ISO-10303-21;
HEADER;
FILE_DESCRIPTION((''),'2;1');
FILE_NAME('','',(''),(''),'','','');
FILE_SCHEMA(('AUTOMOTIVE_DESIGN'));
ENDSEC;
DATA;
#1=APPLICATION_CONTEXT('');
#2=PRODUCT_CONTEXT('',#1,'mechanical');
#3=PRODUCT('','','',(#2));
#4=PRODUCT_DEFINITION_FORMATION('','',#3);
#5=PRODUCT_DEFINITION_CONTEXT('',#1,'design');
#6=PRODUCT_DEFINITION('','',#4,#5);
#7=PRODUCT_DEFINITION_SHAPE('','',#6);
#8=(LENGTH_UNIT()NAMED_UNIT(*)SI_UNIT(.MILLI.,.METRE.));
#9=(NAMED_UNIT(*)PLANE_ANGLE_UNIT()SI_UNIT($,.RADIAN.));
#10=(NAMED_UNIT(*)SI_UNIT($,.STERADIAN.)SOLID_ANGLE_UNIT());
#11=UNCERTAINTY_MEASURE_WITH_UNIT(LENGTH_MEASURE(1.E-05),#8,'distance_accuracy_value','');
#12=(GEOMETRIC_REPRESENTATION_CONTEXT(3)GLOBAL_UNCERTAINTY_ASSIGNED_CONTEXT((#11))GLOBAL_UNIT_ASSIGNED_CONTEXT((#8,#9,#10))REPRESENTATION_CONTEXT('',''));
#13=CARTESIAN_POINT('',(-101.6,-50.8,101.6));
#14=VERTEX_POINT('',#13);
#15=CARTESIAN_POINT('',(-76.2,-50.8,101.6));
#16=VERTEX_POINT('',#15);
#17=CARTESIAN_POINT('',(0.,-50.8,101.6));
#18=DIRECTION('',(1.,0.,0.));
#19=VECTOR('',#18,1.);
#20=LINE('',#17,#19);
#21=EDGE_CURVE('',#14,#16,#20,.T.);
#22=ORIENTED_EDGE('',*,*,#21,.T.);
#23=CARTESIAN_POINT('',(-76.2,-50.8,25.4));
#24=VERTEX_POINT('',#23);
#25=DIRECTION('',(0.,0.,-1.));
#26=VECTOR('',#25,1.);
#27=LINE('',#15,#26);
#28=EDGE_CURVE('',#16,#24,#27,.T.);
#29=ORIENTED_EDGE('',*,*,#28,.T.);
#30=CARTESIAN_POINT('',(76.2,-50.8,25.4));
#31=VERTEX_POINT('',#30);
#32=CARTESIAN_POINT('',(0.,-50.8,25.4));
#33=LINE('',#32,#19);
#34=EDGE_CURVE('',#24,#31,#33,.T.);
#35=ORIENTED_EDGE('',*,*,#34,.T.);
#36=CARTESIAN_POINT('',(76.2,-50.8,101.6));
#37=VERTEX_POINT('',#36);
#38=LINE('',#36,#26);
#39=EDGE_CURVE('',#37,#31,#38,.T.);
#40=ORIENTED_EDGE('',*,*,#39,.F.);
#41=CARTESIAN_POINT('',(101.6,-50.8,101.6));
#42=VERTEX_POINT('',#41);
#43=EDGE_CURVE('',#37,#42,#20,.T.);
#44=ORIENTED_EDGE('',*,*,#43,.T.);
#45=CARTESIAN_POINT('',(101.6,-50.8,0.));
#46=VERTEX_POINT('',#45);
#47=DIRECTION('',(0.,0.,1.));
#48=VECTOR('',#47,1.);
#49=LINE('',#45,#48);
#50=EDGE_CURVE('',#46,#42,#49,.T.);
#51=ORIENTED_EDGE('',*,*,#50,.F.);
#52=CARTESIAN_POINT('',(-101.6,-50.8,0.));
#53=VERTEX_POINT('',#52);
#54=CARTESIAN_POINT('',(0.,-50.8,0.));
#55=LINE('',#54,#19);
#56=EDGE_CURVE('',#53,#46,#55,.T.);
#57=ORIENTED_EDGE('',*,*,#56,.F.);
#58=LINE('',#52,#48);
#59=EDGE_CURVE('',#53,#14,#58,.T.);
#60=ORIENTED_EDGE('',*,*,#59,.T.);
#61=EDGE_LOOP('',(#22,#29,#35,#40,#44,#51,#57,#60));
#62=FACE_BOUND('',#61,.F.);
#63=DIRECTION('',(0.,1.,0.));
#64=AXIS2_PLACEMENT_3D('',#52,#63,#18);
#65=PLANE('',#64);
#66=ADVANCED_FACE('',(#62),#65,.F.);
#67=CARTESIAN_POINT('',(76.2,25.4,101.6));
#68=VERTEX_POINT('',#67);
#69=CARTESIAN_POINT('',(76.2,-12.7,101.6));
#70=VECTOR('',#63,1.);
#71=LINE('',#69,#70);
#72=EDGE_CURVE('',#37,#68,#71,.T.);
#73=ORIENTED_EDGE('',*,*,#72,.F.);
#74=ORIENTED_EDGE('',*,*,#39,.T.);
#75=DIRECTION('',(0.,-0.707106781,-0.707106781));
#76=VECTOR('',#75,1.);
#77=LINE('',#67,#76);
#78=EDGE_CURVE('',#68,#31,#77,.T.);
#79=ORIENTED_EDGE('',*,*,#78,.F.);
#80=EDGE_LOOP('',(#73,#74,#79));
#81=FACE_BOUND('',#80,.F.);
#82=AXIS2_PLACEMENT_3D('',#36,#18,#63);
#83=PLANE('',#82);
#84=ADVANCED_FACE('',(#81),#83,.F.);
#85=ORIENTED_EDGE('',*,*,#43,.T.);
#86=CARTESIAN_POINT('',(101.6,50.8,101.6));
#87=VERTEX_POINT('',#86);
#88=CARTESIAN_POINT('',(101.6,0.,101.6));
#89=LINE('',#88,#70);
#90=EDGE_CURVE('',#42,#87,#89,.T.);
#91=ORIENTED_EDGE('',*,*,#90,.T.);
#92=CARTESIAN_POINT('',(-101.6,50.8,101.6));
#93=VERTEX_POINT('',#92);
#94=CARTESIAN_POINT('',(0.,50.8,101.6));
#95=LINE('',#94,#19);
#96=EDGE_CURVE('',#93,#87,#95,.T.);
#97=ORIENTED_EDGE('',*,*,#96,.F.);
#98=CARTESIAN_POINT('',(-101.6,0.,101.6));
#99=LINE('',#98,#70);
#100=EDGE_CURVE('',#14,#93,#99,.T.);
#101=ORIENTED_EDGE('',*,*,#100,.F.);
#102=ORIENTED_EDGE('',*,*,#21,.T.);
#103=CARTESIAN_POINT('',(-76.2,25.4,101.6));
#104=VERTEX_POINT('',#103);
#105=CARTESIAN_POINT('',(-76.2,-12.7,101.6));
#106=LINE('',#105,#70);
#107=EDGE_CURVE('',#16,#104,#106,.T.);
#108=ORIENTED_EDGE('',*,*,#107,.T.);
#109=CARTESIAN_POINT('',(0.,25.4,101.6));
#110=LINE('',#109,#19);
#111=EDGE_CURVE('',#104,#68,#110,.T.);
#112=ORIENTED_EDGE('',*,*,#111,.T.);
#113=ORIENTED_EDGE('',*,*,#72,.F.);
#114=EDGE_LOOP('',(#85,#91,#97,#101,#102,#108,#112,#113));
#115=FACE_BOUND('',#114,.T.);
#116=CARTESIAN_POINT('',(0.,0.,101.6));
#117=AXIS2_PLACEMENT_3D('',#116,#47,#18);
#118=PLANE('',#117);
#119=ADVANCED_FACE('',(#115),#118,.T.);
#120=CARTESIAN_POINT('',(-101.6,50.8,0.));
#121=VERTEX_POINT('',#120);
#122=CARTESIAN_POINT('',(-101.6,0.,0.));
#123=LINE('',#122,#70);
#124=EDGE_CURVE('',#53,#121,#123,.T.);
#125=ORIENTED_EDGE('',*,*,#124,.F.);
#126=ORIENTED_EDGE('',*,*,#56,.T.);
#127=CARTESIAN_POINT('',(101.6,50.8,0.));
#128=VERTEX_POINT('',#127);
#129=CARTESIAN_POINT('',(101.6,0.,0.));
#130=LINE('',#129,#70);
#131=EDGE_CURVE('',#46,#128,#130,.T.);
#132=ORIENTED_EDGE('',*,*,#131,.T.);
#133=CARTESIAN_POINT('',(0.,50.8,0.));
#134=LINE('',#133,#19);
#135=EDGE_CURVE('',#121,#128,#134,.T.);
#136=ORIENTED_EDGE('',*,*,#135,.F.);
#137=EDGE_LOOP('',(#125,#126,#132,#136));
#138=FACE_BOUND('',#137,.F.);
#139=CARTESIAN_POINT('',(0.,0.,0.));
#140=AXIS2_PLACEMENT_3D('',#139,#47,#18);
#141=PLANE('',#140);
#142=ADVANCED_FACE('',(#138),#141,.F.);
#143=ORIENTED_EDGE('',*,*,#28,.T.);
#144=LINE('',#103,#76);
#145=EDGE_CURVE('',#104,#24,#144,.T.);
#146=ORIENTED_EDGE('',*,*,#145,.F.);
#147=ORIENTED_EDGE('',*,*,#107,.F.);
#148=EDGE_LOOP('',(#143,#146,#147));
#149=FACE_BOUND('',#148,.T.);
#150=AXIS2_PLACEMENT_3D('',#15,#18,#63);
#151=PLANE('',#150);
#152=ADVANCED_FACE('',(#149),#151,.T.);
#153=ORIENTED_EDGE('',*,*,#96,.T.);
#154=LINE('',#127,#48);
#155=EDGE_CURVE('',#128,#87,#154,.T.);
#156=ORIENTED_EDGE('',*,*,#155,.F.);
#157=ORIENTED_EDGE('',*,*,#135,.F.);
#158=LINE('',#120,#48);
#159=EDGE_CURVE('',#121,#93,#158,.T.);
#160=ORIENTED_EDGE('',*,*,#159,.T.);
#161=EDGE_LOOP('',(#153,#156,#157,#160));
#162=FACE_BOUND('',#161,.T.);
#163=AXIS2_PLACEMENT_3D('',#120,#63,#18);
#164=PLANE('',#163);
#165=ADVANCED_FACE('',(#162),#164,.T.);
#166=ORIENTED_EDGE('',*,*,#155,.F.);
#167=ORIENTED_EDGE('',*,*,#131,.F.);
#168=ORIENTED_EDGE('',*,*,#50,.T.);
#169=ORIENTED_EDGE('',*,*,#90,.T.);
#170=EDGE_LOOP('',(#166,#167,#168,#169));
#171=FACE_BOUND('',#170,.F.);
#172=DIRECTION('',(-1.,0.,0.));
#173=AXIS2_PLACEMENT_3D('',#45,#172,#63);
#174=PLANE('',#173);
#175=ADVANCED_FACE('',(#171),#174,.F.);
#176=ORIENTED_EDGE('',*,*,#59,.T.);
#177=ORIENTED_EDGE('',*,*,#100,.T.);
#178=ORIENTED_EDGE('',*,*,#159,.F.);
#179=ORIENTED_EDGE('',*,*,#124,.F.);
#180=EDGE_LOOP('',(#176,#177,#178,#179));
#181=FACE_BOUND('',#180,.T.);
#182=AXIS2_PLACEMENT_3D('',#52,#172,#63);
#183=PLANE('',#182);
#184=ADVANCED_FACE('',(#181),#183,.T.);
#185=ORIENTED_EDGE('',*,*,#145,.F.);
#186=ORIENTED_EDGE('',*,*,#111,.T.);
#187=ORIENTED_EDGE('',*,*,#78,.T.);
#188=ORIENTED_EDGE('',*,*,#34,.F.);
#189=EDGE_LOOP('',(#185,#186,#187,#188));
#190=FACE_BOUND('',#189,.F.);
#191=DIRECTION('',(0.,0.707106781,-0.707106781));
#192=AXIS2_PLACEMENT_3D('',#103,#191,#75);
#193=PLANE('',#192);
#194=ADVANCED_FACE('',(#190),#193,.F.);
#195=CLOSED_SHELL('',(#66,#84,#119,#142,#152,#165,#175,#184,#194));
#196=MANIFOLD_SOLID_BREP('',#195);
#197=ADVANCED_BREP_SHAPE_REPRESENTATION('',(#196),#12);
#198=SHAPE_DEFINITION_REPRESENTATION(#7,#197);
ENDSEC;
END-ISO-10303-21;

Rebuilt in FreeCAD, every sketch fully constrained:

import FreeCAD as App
import Part
import Sketcher

V = App.Vector
Q = App.Units.Quantity

doc = App.newDocument("Part")
body = doc.addObject("PartDesign::Body", "Body")

sketch1 = doc.addObject("Sketcher::SketchObject", "Sketch")
body.addObject(sketch1)
sketch1.AttachmentSupport = (doc.XY_Plane, [""])
sketch1.MapMode = "FlatFace"
sketch1.addGeometry([
    Part.LineSegment(V(-102, 51, 0), V(-102, -51, 0)),
    Part.LineSegment(V(-102, -51, 0), V(102, -51, 0)),
    Part.LineSegment(V(102, -51, 0), V(102, 51, 0)),
    Part.LineSegment(V(102, 51, 0), V(-102, 51, 0)),
], False)
sketch1.addConstraint([
    Sketcher.Constraint("Coincident", 0, 2, 1, 1),
    Sketcher.Constraint("Coincident", 1, 2, 2, 1),
    Sketcher.Constraint("Coincident", 2, 2, 3, 1),
    Sketcher.Constraint("Coincident", 3, 2, 0, 1),
    Sketcher.Constraint("Vertical", 0),
    Sketcher.Constraint("Horizontal", 1),
    Sketcher.Constraint("Vertical", 2),
    Sketcher.Constraint("Horizontal", 3),
    Sketcher.Constraint("Symmetric", 0, 2, 2, 2, -1, 1),
    Sketcher.Constraint("DistanceX", 1, 1, 1, 2, Q("8 in")),
    Sketcher.Constraint("DistanceY", 0, 2, 0, 1, Q("4 in")),
])
pad1 = doc.addObject("PartDesign::Pad", "Pad")
body.addObject(pad1)
pad1.Profile = sketch1
pad1.Length = Q("4 in")

sketch2 = doc.addObject("Sketcher::SketchObject", "Sketch001")
body.addObject(sketch2)
sketch2.AttachmentSupport = (doc.XY_Plane, [""])
sketch2.MapMode = "FlatFace"
sketch2.AttachmentOffset = App.Placement(V(0, 0, 4 * 25.4), App.Rotation())
sketch2.addGeometry([
    Part.LineSegment(V(-76, 25, 0), V(-76, -51, 0)),
    Part.LineSegment(V(-76, -51, 0), V(76, -51, 0)),
    Part.LineSegment(V(76, -51, 0), V(76, 25, 0)),
    Part.LineSegment(V(76, 25, 0), V(-76, 25, 0)),
], False)
sketch2.addConstraint([
    Sketcher.Constraint("Coincident", 0, 2, 1, 1),
    Sketcher.Constraint("Coincident", 1, 2, 2, 1),
    Sketcher.Constraint("Coincident", 2, 2, 3, 1),
    Sketcher.Constraint("Coincident", 3, 2, 0, 1),
    Sketcher.Constraint("Vertical", 0),
    Sketcher.Constraint("Horizontal", 1),
    Sketcher.Constraint("Vertical", 2),
    Sketcher.Constraint("Horizontal", 3),
    Sketcher.Constraint("DistanceX", 1, 1, 1, 2, Q("6 in")),
    Sketcher.Constraint("DistanceY", 0, 2, 0, 1, Q("3 in")),
    Sketcher.Constraint("DistanceX", 0, 2, -1, 1, Q("3 in")),
    Sketcher.Constraint("DistanceY", 0, 2, -1, 1, Q("2 in")),
])
pocket1 = doc.addObject("PartDesign::Pocket", "Pocket")
body.addObject(pocket1)
pocket1.Profile = sketch2
pocket1.Length = Q("3 in")

sketch3 = doc.addObject("Sketcher::SketchObject", "Sketch002")
body.addObject(sketch3)
sketch3.AttachmentSupport = (doc.YZ_Plane, [""])
sketch3.MapMode = "FlatFace"
sketch3.AttachmentOffset = App.Placement(V(0, 0, -3 * 25.4), App.Rotation())
sketch3.addGeometry([
    Part.LineSegment(V(25, 25, 0), V(25, 102, 0)),
    Part.LineSegment(V(25, 102, 0), V(-51, 25, 0)),
    Part.LineSegment(V(-51, 25, 0), V(25, 25, 0)),
], False)
sketch3.addConstraint([
    Sketcher.Constraint("Coincident", 0, 2, 1, 1),
    Sketcher.Constraint("Coincident", 1, 2, 2, 1),
    Sketcher.Constraint("Coincident", 2, 2, 0, 1),
    Sketcher.Constraint("Vertical", 0),
    Sketcher.Constraint("Horizontal", 2),
    Sketcher.Constraint("Equal", 2, 0),
    Sketcher.Constraint("DistanceX", 2, 1, 2, 2, Q("3 in")),
    Sketcher.Constraint("DistanceX", -1, 1, 0, 2, Q("1 in")),
    Sketcher.Constraint("DistanceY", -1, 1, 0, 2, Q("4 in")),
])
pad2 = doc.addObject("PartDesign::Pad", "Pad001")
body.addObject(pad2)
pad2.Profile = sketch3
pad2.Length = Q("6 in")

doc.recompute()
